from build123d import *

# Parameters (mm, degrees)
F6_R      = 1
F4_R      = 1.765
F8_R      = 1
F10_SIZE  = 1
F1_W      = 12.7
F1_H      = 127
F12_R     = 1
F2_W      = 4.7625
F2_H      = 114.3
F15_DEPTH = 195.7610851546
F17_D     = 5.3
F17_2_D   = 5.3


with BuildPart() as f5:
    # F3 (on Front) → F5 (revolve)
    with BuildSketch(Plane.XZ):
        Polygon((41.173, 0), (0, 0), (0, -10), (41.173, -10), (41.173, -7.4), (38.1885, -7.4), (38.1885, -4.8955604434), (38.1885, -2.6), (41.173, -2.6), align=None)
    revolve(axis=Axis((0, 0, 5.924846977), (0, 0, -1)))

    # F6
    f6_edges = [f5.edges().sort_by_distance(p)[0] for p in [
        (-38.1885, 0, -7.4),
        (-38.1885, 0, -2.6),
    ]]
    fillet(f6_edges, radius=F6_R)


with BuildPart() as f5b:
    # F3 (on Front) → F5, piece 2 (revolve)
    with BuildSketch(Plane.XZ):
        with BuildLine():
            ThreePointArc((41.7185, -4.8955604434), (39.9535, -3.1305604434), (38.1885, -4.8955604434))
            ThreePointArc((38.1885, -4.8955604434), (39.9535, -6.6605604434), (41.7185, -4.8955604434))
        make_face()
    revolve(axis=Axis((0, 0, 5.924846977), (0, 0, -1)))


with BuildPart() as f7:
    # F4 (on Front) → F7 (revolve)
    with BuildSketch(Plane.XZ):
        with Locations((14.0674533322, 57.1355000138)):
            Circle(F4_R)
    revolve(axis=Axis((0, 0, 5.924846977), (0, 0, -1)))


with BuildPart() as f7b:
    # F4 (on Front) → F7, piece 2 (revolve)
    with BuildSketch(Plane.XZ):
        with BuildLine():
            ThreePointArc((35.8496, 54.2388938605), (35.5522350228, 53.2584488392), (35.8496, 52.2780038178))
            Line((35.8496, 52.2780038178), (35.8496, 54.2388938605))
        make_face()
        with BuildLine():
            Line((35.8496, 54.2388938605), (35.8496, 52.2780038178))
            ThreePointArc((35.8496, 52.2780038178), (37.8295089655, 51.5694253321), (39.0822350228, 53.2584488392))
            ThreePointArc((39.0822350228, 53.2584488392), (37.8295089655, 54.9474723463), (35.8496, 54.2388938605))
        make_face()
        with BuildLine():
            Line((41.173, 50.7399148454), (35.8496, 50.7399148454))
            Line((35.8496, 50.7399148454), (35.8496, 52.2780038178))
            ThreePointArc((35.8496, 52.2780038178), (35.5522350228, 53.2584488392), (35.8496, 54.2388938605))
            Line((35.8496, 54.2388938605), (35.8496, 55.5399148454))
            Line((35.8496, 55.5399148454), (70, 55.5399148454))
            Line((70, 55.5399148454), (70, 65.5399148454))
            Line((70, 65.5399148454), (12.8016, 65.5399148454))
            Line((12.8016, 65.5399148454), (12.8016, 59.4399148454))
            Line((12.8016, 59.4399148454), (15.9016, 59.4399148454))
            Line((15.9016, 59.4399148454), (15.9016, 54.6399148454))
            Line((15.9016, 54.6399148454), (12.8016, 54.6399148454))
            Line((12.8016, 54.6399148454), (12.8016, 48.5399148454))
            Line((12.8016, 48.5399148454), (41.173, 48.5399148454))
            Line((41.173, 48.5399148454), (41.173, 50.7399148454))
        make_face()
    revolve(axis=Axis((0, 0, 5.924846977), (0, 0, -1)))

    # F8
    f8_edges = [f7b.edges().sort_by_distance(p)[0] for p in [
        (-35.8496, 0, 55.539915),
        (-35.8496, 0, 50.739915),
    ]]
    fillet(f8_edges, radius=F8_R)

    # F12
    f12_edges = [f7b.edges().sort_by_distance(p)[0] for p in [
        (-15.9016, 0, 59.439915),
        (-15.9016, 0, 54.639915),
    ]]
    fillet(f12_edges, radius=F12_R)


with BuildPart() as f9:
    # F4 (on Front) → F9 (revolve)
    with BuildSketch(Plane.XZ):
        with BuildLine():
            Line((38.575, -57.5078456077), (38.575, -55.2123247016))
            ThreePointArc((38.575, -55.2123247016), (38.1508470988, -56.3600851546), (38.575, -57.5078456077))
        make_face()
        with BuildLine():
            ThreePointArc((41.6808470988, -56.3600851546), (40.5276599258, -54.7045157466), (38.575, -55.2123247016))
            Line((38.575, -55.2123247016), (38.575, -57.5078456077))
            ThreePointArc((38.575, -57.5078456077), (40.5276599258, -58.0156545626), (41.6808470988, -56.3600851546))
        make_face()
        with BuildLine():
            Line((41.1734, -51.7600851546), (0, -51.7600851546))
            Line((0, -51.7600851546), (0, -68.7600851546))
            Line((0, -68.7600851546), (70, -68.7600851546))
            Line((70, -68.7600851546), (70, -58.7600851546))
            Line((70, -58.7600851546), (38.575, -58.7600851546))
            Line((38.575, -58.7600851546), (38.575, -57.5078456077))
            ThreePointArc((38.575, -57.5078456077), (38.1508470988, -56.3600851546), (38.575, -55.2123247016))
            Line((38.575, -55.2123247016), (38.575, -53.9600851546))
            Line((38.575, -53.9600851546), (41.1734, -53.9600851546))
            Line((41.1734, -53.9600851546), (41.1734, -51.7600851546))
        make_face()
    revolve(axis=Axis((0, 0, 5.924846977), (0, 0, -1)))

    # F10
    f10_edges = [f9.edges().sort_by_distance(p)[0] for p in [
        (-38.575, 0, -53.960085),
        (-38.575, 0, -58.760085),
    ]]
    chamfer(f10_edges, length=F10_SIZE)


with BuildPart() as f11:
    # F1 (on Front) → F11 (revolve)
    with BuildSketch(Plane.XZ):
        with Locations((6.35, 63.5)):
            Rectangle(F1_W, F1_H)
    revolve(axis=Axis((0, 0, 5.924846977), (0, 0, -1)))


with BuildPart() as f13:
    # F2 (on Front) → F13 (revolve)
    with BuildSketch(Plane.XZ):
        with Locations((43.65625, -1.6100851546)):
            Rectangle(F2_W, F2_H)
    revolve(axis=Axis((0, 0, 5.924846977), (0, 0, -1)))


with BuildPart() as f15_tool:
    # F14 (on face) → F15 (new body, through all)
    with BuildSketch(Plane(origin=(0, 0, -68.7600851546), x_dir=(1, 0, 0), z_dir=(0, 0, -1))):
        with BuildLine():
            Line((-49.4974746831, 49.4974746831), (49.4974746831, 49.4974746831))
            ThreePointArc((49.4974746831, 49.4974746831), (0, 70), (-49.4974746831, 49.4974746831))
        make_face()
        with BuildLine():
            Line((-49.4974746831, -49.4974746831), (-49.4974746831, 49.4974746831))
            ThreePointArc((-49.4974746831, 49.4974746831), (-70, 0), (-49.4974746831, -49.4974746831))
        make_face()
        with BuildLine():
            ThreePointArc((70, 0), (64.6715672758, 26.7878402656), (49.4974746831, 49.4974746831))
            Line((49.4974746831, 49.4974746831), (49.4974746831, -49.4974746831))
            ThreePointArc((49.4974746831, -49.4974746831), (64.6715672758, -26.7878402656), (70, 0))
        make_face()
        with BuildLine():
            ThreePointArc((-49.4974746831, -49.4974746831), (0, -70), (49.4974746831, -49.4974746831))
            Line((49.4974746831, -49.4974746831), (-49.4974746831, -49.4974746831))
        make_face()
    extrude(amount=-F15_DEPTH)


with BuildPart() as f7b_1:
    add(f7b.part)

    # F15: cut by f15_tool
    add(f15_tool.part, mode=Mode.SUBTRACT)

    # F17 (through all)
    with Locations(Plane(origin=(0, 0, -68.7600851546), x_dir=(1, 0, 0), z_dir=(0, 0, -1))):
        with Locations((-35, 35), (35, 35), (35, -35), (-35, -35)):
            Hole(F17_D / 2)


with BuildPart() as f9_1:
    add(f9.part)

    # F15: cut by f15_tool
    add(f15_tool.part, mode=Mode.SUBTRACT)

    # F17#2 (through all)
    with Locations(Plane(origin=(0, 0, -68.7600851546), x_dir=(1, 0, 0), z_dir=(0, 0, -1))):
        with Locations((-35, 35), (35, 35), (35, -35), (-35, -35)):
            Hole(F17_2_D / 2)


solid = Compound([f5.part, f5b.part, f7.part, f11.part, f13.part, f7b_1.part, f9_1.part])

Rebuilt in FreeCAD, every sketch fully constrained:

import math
import FreeCAD as App
import Part
import Sketcher
from FreeCAD import Vector


def edges_at(feature, points):
    """Names of the edges that pass closest to the given points."""
    edges = feature.Shape.Edges
    near = lambda p: min(range(len(edges)), key=lambda i: edges[i].distToShape(Part.Vertex(*p))[0])
    return sorted({f"Edge{near(p) + 1}" for p in points})


def add_polygon(sketch, points):
    """Adds a closed chain of lines whose ends are joined by coincident constraints."""
    first, n = sketch.GeometryCount, len(points)
    for a, b in zip(points, points[1:] + points[:1]):
        sketch.addGeometry(Part.LineSegment(App.Vector(*a, 0), App.Vector(*b, 0)), False)
    for i in range(n):
        sketch.addConstraint(Sketcher.Constraint("Coincident", first + i, 2, first + (i + 1) % n, 1))

doc = App.newDocument("Part")
body = doc.addObject("PartDesign::Body", "Body")

sketch1 = body.newObject("Sketcher::SketchObject", "Sketch")
sketch1.AttachmentSupport = (doc.getObject("XZ_Plane"), [""])
sketch1.MapMode = "FlatFace"
add_polygon(sketch1, [(41.2, 0), (0, 0), (0, -10), (41.2, -10), (41.2, -7.4), (38.2, -7.4), (38.2, -2.6), (41.2, -2.6)])
sketch1.addConstraint([
    Sketcher.Constraint("Horizontal", 0),
    Sketcher.Constraint("Vertical", 1),
    Sketcher.Constraint("Horizontal", 2),
    Sketcher.Constraint("Vertical", 3),
    Sketcher.Constraint("Horizontal", 4),
    Sketcher.Constraint("Vertical", 5),
    Sketcher.Constraint("Horizontal", 6),
    Sketcher.Constraint("Vertical", 7),
    Sketcher.Constraint("Coincident", 0, 2, -1, 1),
    Sketcher.Constraint("Vertical", 3, 2, 6, 2),
    Sketcher.Constraint("Equal", 3, 7),
    Sketcher.Constraint("DistanceY", 1, 2, 1, 1, 10.0),
    Sketcher.Constraint("DistanceY", 3, 1, 3, 2, 2.6),
    Sketcher.Constraint("DistanceX", 0, 2, 0, 1, 41.173),
    Sketcher.Constraint("DistanceX", 4, 2, 4, 1, 2.9845),
])
revolution = body.newObject("PartDesign::Revolution", "Revolution")
revolution.Profile = sketch1
revolution.ReferenceAxis = (sketch1, ["V_Axis"])
revolution.Angle = 360
doc.recompute()

fillet = body.newObject("PartDesign::Fillet", "Fillet")
fillet.Base = (revolution, edges_at(revolution, [(-38.188, 0, -7.4), (-38.188, 0, -2.6)]))
fillet.Radius = 1
body2 = doc.addObject("PartDesign::Body", "Body001")

sketch2 = body2.newObject("Sketcher::SketchObject", "Sketch001")
sketch2.AttachmentSupport = (doc.getObject("XZ_Plane001"), [""])
sketch2.MapMode = "FlatFace"
sketch2.addGeometry(Part.Circle(Vector(40, -4.9, 0), Vector(0, 0, 1), 1.8), False)
sketch2.addConstraint([
    Sketcher.Constraint("Diameter", 0, 3.53),
    Sketcher.Constraint("DistanceX", -1, 1, 0, 3, 39.9535),
    Sketcher.Constraint("DistanceY", 0, 3, -1, 1, 4.89556),
])
revolution2 = body2.newObject("PartDesign::Revolution", "Revolution001")
revolution2.Profile = sketch2
revolution2.ReferenceAxis = (sketch2, ["V_Axis"])
revolution2.Angle = 360
body3 = doc.addObject("PartDesign::Body", "Body002")

sketch3 = body3.newObject("Sketcher::SketchObject", "Sketch002")
sketch3.AttachmentSupport = (doc.getObject("XZ_Plane002"), [""])
sketch3.MapMode = "FlatFace"
sketch3.addGeometry(Part.Circle(Vector(14.1, 57.1, 0), Vector(0, 0, 1), 1.8), False)
sketch3.addConstraint([
    Sketcher.Constraint("Diameter", 0, 3.53),
    Sketcher.Constraint("DistanceY", -1, 1, 0, 3, 57.1355),
    Sketcher.Constraint("DistanceX", -1, 1, 0, 3, 14.067453),
])
revolution3 = body3.newObject("PartDesign::Revolution", "Revolution002")
revolution3.Profile = sketch3
revolution3.ReferenceAxis = (sketch3, ["V_Axis"])
revolution3.Angle = 360
body4 = doc.addObject("PartDesign::Body", "Body003")

sketch4 = body4.newObject("Sketcher::SketchObject", "Sketch003")
sketch4.AttachmentSupport = (doc.getObject("XZ_Plane003"), [""])
sketch4.MapMode = "FlatFace"
sketch4.addGeometry([
    Part.ArcOfCircle(Part.Circle(Vector(37.3, 53.3, 0), Vector(0, 0, 1), 1.8), math.radians(-146), math.radians(0)),
    Part.ArcOfCircle(Part.Circle(Vector(37.3, 53.3, 0), Vector(0, 0, 1), 1.8), math.radians(0), math.radians(146)),
    Part.LineSegment(Vector(35.8, 54.2, 0), Vector(35.8, 55.5, 0)),
    Part.LineSegment(Vector(35.8, 55.5, 0), Vector(70, 55.5, 0)),
    Part.LineSegment(Vector(70, 55.5, 0), Vector(70, 65.5, 0)),
    Part.LineSegment(Vector(70, 65.5, 0), Vector(12.8, 65.5, 0)),
    Part.LineSegment(Vector(12.8, 65.5, 0), Vector(12.8, 59.4, 0)),
    Part.LineSegment(Vector(12.8, 59.4, 0), Vector(15.9, 59.4, 0)),
    Part.LineSegment(Vector(15.9, 59.4, 0), Vector(15.9, 54.6, 0)),
    Part.LineSegment(Vector(15.9, 54.6, 0), Vector(12.8, 54.6, 0)),
    Part.LineSegment(Vector(12.8, 54.6, 0), Vector(12.8, 48.5, 0)),
    Part.LineSegment(Vector(12.8, 48.5, 0), Vector(41.2, 48.5, 0)),
    Part.LineSegment(Vector(41.2, 48.5, 0), Vector(41.2, 50.7, 0)),
    Part.LineSegment(Vector(41.2, 50.7, 0), Vector(35.8, 50.7, 0)),
    Part.LineSegment(Vector(35.8, 50.7, 0), Vector(35.8, 52.3, 0)),
], False)
sketch4.addConstraint([
    Sketcher.Constraint("Tangent", 0, 2, 1, 1),
    Sketcher.Constraint("Coincident", 1, 2, 2, 1),
    Sketcher.Constraint("Coincident", 2, 2, 3, 1),
    Sketcher.Constraint("Coincident", 3, 2, 4, 1),
    Sketcher.Constraint("Coincident", 4, 2, 5, 1),
    Sketcher.Constraint("Coincident", 5, 2, 6, 1),
    Sketcher.Constraint("Coincident", 6, 2, 7, 1),
    Sketcher.Constraint("Coincident", 7, 2, 8, 1),
    Sketcher.Constraint("Coincident", 8, 2, 9, 1),
    Sketcher.Constraint("Coincident", 9, 2, 10, 1),
    Sketcher.Constraint("Coincident", 10, 2, 11, 1),
    Sketcher.Constraint("Coincident", 11, 2, 12, 1),
    Sketcher.Constraint("Coincident", 12, 2, 13, 1),
    Sketcher.Constraint("Coincident", 13, 2, 14, 1),
    Sketcher.Constraint("Coincident", 14, 2, 0, 1),
    Sketcher.Constraint("Vertical", 2),
    Sketcher.Constraint("Horizontal", 3),
    Sketcher.Constraint("Vertical", 4),
    Sketcher.Constraint("Horizontal", 5),
    Sketcher.Constraint("Vertical", 6),
    Sketcher.Constraint("Horizontal", 7),
    Sketcher.Constraint("Vertical", 8),
    Sketcher.Constraint("Horizontal", 9),
    Sketcher.Constraint("Vertical", 10),
    Sketcher.Constraint("Horizontal", 11),
    Sketcher.Constraint("Vertical", 12),
    Sketcher.Constraint("Horizontal", 13),
    Sketcher.Constraint("Vertical", 14),
    Sketcher.Constraint("Equal", 0, 1),
    Sketcher.Constraint("Horizontal", 1, 3, 0, 2),
    Sketcher.Constraint("Vertical", 6, 2, 9, 2),
    Sketcher.Constraint("Vertical", 2, 2, 13, 2),
    Sketcher.Constraint("Equal", 6, 10),
    Sketcher.Constraint("DistanceY", 4, 1, 4, 2, 10.0),
    Sketcher.Constraint("DistanceX", 7, 1, 7, 2, 3.1),
    Sketcher.Constraint("DistanceY", 6, 2, 6, 1, 6.1),
    Sketcher.Constraint("DistanceY", 8, 2, 8, 1, 4.8),
    Sketcher.Constraint("DistanceY", 12, 1, 12, 2, 2.2),
    Sketcher.Constraint("DistanceX", -1, 1, 3, 2, 70.0),
    Sketcher.Constraint("Radius", 0, 1.765),
    Sketcher.Constraint("DistanceX", 3, 1, 3, 2, 34.1504),
    Sketcher.Constraint("DistanceX", 5, 2, 5, 1, 57.1984),
    Sketcher.Constraint("DistanceX", 11, 1, 11, 2, 28.3714),
    Sketcher.Constraint("DistanceY", 2, 1, 2, 2, 1.301021),
    Sketcher.Constraint("DistanceY", 14, 1, 14, 2, 1.538089),
    Sketcher.Constraint("DistanceY", -1, 1, 0, 3, 53.258449),
])
revolution4 = body4.newObject("PartDesign::Revolution", "Revolution003")
revolution4.Profile = sketch4
revolution4.ReferenceAxis = (sketch4, ["V_Axis"])
revolution4.Angle = 360
doc.recompute()

fillet2 = body4.newObject("PartDesign::Fillet", "Fillet001")
fillet2.Base = (revolution4, edges_at(revolution4, [(-35.85, 0, 55.54), (-35.85, 0, 50.74)]))
fillet2.Radius = 1
doc.recompute()

fillet3 = body4.newObject("PartDesign::Fillet", "Fillet002")
fillet3.Base = (fillet2, edges_at(fillet2, [(-15.902, 0, 59.44), (-15.902, 0, 54.64)]))
fillet3.Radius = 1
body5 = doc.addObject("PartDesign::Body", "Body004")

sketch5 = body5.newObject("Sketcher::SketchObject", "Sketch004")
sketch5.AttachmentSupport = (doc.getObject("XZ_Plane004"), [""])
sketch5.MapMode = "FlatFace"
sketch5.addGeometry([
    Part.ArcOfCircle(Part.Circle(Vector(39.9, -56.4, 0), Vector(0, 0, 1), 1.8), math.radians(-139), math.radians(0)),
    Part.ArcOfCircle(Part.Circle(Vector(39.9, -56.4, 0), Vector(0, 0, 1), 1.8), math.radians(0), math.radians(139)),
    Part.LineSegment(Vector(38.6, -55.2, 0), Vector(38.6, -54, 0)),
    Part.LineSegment(Vector(38.6, -54, 0), Vector(41.2, -54, 0)),
    Part.LineSegment(Vector(41.2, -54, 0), Vector(41.2, -51.8, 0)),
    Part.LineSegment(Vector(41.2, -51.8, 0), Vector(0, -51.8, 0)),
    Part.LineSegment(Vector(0, -51.8, 0), Vector(0, -68.8, 0)),
    Part.LineSegment(Vector(0, -68.8, 0), Vector(70, -68.8, 0)),
    Part.LineSegment(Vector(70, -68.8, 0), Vector(70, -58.8, 0)),
    Part.LineSegment(Vector(70, -58.8, 0), Vector(38.6, -58.8, 0)),
    Part.LineSegment(Vector(38.6, -58.8, 0), Vector(38.6, -57.5, 0)),
], False)
sketch5.addConstraint([
    Sketcher.Constraint("Tangent", 0, 2, 1, 1),
    Sketcher.Constraint("Coincident", 1, 2, 2, 1),
    Sketcher.Constraint("Coincident", 2, 2, 3, 1),
    Sketcher.Constraint("Coincident", 3, 2, 4, 1),
    Sketcher.Constraint("Coincident", 4, 2, 5, 1),
    Sketcher.Constraint("Coincident", 5, 2, 6, 1),
    Sketcher.Constraint("Coincident", 6, 2, 7, 1),
    Sketcher.Constraint("Coincident", 7, 2, 8, 1),
    Sketcher.Constraint("Coincident", 8, 2, 9, 1),
    Sketcher.Constraint("Coincident", 9, 2, 10, 1),
    Sketcher.Constraint("Coincident", 10, 2, 0, 1),
    Sketcher.Constraint("Vertical", 2),
    Sketcher.Constraint("Horizontal", 3),
    Sketcher.Constraint("Vertical", 4),
    Sketcher.Constraint("Horizontal", 5),
    Sketcher.Constraint("Vertical", 6),
    Sketcher.Constraint("Horizontal", 7),
    Sketcher.Constraint("Vertical", 8),
    Sketcher.Constraint("Horizontal", 9),
    Sketcher.Constraint("Vertical", 10),
    Sketcher.Constraint("Equal", 0, 1),
    Sketcher.Constraint("PointOnObject", 5, 2, -2),
    Sketcher.Constraint("Horizontal", 1, 3, 0, 2),
    Sketcher.Constraint("Vertical", 2, 2, 9, 2),
    Sketcher.Constraint("Equal", 2, 10),
    Sketcher.Constraint("DistanceX", 7, 1, 7, 2, 70.0),
    Sketcher.Constraint("DistanceY", 6, 2, 6, 1, 17.0),
    Sketcher.Constraint("DistanceY", 8, 1, 8, 2, 10.0),
    Sketcher.Constraint("DistanceY", 4, 1, 4, 2, 2.2),
    Sketcher.Constraint("Radius", 0, 1.765),
    Sketcher.Constraint("DistanceX", 9, 2, 9, 1, 31.425),
    Sketcher.Constraint("DistanceX", 3, 1, 3, 2, 2.5984),
    Sketcher.Constraint("DistanceY", 2, 1, 2, 2, 1.25224),
    Sketcher.Constraint("DistanceY", 0, 3, -1, 1, 56.360085),
])
revolution5 = body5.newObject("PartDesign::Revolution", "Revolution004")
revolution5.Profile = sketch5
revolution5.ReferenceAxis = (sketch5, ["V_Axis"])
revolution5.Angle = 360
doc.recompute()

chamfer = body5.newObject("PartDesign::Chamfer", "Chamfer")
chamfer.Base = (revolution5, edges_at(revolution5, [(-38.575, 0, -53.96), (-38.575, 0, -58.76)]))
chamfer.Size = 1
body6 = doc.addObject("PartDesign::Body", "Body005")

sketch6 = body6.newObject("Sketcher::SketchObject", "Sketch005")
sketch6.AttachmentSupport = (doc.getObject("XZ_Plane005"), [""])
sketch6.MapMode = "FlatFace"
add_polygon(sketch6, [(0, 127), (0, 0), (13, 0), (13, 127)])
sketch6.addConstraint([
    Sketcher.Constraint("Vertical", 0),
    Sketcher.Constraint("Horizontal", 1),
    Sketcher.Constraint("Vertical", 2),
    Sketcher.Constraint("Horizontal", 3),
    Sketcher.Constraint("Coincident", 0, 2, -1, 1),
    Sketcher.Constraint("DistanceY", 0, 2, 0, 1, 127.0),
    Sketcher.Constraint("DistanceX", 1, 1, 1, 2, 12.7),
])
revolution6 = body6.newObject("PartDesign::Revolution", "Revolution005")
revolution6.Profile = sketch6
revolution6.ReferenceAxis = (sketch6, ["V_Axis"])
revolution6.Angle = 360
body7 = doc.addObject("PartDesign::Body", "Body006")

sketch7 = body7.newObject("Sketcher::SketchObject", "Sketch006")
sketch7.AttachmentSupport = (doc.getObject("XZ_Plane006"), [""])
sketch7.MapMode = "FlatFace"
add_polygon(sketch7, [(41.3, 55.5), (41.3, -58.8), (46, -58.8), (46, 55.5)])
sketch7.addConstraint([
    Sketcher.Constraint("Vertical", 0),
    Sketcher.Constraint("Horizontal", 1),
    Sketcher.Constraint("Vertical", 2),
    Sketcher.Constraint("Horizontal", 3),
    Sketcher.Constraint("DistanceY", 0, 2, 0, 1, 114.3),
    Sketcher.Constraint("DistanceX", 1, 1, 1, 2, 4.7625),
    Sketcher.Constraint("DistanceX", -1, 1, 0, 2, 41.275),
    Sketcher.Constraint("DistanceY", 0, 2, -1, 1, 58.760085),
])
revolution7 = body7.newObject("PartDesign::Revolution", "Revolution006")
revolution7.Profile = sketch7
revolution7.ReferenceAxis = (sketch7, ["V_Axis"])
revolution7.Angle = 360
body8 = doc.addObject("PartDesign::Body", "Body007")
body8.AllowCompound = True

sketch8 = body8.newObject("Sketcher::SketchObject", "Sketch007")
sketch8.AttachmentSupport = (doc.getObject("XY_Plane007"), [""])
sketch8.MapMode = "FlatFace"
sketch8.AttachmentOffset = App.Placement(Vector(0, 0, -68.760085), App.Rotation())
sketch8.addGeometry([
    Part.LineSegment(Vector(-49, -49, 0), Vector(49, -49, 0)),
    Part.ArcOfCircle(Part.Circle(Vector(0, 0, 0), Vector(0, 0, 1), 70), math.radians(-135), math.radians(-45)),
    Part.LineSegment(Vector(-49, 49, 0), Vector(-49, -49, 0)),
    Part.ArcOfCircle(Part.Circle(Vector(0, 0, 0), Vector(0, 0, 1), 70), math.radians(135), math.radians(225)),
    Part.ArcOfCircle(Part.Circle(Vector(0, 0, 0), Vector(0, 0, 1), 70), math.radians(-45), math.radians(0)),
    Part.LineSegment(Vector(49, -49, 0), Vector(49, 49, 0)),
    Part.ArcOfCircle(Part.Circle(Vector(0, 0, 0), Vector(0, 0, 1), 70), math.radians(0), math.radians(45)),
    Part.ArcOfCircle(Part.Circle(Vector(0, 0, 0), Vector(0, 0, 1), 70), math.radians(45), math.radians(135)),
    Part.LineSegment(Vector(49, 49, 0), Vector(-49, 49, 0)),
], False)
sketch8.addConstraint([
    Sketcher.Constraint("Coincident", 0, 1, 1, 1),
    Sketcher.Constraint("Coincident", 1, 2, 0, 2),
    Sketcher.Constraint("Coincident", 2, 1, 3, 1),
    Sketcher.Constraint("Coincident", 3, 2, 2, 2),
    Sketcher.Constraint("Coincident", 4, 1, 5, 1),
    Sketcher.Constraint("Coincident", 5, 2, 6, 2),
    Sketcher.Constraint("Tangent", 6, 1, 4, 2),
    Sketcher.Constraint("Coincident", 7, 1, 8, 1),
    Sketcher.Constraint("Coincident", 8, 2, 7, 2),
    Sketcher.Constraint("Horizontal", 0),
    Sketcher.Constraint("Vertical", 2),
    Sketcher.Constraint("Vertical", 5),
    Sketcher.Constraint("Horizontal", 8),
    Sketcher.Constraint("Coincident", 1, 3, -1, 1),
    Sketcher.Constraint("Coincident", 3, 3, -1, 1),
    Sketcher.Constraint("Coincident", 4, 3, -1, 1),
    Sketcher.Constraint("Coincident", 7, 3, -1, 1),
    Sketcher.Constraint("Coincident", 3, 2, 0, 1),
    Sketcher.Constraint("Coincident", 4, 1, 1, 2),
    Sketcher.Constraint("Coincident", 7, 1, 5, 2),
    Sketcher.Constraint("Equal", 4, 6),
    Sketcher.Constraint("PointOnObject", 6, 1, -1),
    Sketcher.Constraint("Equal", 8, 2),
    Sketcher.Constraint("Radius", 1, 70.0),
])
pad1 = body8.newObject("PartDesign::Pad", "Pad")
pad1.Profile = sketch8
pad1.Length = 195.761085
doc.recompute()

body9 = doc.addObject("PartDesign::Body", "Body008")
body9.BaseFeature = body8
boolean = body4.newObject("PartDesign::Boolean", "Boolean")
boolean.Type = "Cut"
boolean.addObjects([body9])
doc.recompute()

sketch9 = body4.newObject("Sketcher::SketchObject", "Sketch008")
sketch9.AttachmentSupport = (doc.getObject("XY_Plane003"), [""])
sketch9.MapMode = "FlatFace"
sketch9.AttachmentOffset = App.Placement(Vector(0, 0, -68.760085), App.Rotation())
sketch9.addGeometry([
    Part.Circle(Vector(-35, -35, 0), Vector(0, 0, 1), 2.6),
    Part.Circle(Vector(35, -35, 0), Vector(0, 0, 1), 2.6),
    Part.Circle(Vector(35, 35, 0), Vector(0, 0, 1), 2.6),
    Part.Circle(Vector(-35, 35, 0), Vector(0, 0, 1), 2.6),
], False)
sketch9.addConstraint([
    Sketcher.Constraint("Equal", 0, 1),
    Sketcher.Constraint("Equal", 1, 2),
    Sketcher.Constraint("Equal", 2, 3),
    Sketcher.Constraint("Symmetric", 0, 3, 2, 3, -1, 1),
    Sketcher.Constraint("Symmetric", 1, 3, 3, 3, -1, 1),
    Sketcher.Constraint("Symmetric", 0, 3, 1, 3, -2),
    Sketcher.Constraint("Diameter", 0, 5.3),
    Sketcher.Constraint("DistanceX", 0, 3, -1, 1, 35.0),
    Sketcher.Constraint("DistanceY", 0, 3, -1, 1, 35.0),
])
doc.recompute()
hole = body4.newObject("PartDesign::Hole", "Hole")
hole.Profile = sketch9
hole.ThreadType = "None"
hole.Diameter = 5.3
hole.DepthType = "ThroughAll"
hole.Reversed = True
doc.recompute()

boolean2 = body5.newObject("PartDesign::Boolean", "Boolean001")
boolean2.Type = "Cut"
boolean2.addObjects([body8])

sketch10 = body5.newObject("Sketcher::SketchObject", "Sketch009")
sketch10.AttachmentSupport = (doc.getObject("XY_Plane004"), [""])
sketch10.MapMode = "FlatFace"
sketch10.AttachmentOffset = App.Placement(Vector(0, 0, -68.760085), App.Rotation())
sketch10.addGeometry([
    Part.Circle(Vector(-35, -35, 0), Vector(0, 0, 1), 2.6),
    Part.Circle(Vector(35, -35, 0), Vector(0, 0, 1), 2.6),
    Part.Circle(Vector(35, 35, 0), Vector(0, 0, 1), 2.6),
    Part.Circle(Vector(-35, 35, 0), Vector(0, 0, 1), 2.6),
], False)
sketch10.addConstraint([
    Sketcher.Constraint("Equal", 0, 1),
    Sketcher.Constraint("Equal", 1, 2),
    Sketcher.Constraint("Equal", 2, 3),
    Sketcher.Constraint("Symmetric", 0, 3, 2, 3, -1, 1),
    Sketcher.Constraint("Symmetric", 1, 3, 3, 3, -1, 1),
    Sketcher.Constraint("Symmetric", 0, 3, 1, 3, -2),
    Sketcher.Constraint("Diameter", 0, 5.3),
    Sketcher.Constraint("DistanceX", 0, 3, -1, 1, 35.0),
    Sketcher.Constraint("DistanceY", 0, 3, -1, 1, 35.0),
])
doc.recompute()
hole2 = body5.newObject("PartDesign::Hole", "Hole001")
hole2.Profile = sketch10
hole2.ThreadType = "None"
hole2.Diameter = 5.3
hole2.DepthType = "ThroughAll"
hole2.Reversed = True

doc.recompute()
